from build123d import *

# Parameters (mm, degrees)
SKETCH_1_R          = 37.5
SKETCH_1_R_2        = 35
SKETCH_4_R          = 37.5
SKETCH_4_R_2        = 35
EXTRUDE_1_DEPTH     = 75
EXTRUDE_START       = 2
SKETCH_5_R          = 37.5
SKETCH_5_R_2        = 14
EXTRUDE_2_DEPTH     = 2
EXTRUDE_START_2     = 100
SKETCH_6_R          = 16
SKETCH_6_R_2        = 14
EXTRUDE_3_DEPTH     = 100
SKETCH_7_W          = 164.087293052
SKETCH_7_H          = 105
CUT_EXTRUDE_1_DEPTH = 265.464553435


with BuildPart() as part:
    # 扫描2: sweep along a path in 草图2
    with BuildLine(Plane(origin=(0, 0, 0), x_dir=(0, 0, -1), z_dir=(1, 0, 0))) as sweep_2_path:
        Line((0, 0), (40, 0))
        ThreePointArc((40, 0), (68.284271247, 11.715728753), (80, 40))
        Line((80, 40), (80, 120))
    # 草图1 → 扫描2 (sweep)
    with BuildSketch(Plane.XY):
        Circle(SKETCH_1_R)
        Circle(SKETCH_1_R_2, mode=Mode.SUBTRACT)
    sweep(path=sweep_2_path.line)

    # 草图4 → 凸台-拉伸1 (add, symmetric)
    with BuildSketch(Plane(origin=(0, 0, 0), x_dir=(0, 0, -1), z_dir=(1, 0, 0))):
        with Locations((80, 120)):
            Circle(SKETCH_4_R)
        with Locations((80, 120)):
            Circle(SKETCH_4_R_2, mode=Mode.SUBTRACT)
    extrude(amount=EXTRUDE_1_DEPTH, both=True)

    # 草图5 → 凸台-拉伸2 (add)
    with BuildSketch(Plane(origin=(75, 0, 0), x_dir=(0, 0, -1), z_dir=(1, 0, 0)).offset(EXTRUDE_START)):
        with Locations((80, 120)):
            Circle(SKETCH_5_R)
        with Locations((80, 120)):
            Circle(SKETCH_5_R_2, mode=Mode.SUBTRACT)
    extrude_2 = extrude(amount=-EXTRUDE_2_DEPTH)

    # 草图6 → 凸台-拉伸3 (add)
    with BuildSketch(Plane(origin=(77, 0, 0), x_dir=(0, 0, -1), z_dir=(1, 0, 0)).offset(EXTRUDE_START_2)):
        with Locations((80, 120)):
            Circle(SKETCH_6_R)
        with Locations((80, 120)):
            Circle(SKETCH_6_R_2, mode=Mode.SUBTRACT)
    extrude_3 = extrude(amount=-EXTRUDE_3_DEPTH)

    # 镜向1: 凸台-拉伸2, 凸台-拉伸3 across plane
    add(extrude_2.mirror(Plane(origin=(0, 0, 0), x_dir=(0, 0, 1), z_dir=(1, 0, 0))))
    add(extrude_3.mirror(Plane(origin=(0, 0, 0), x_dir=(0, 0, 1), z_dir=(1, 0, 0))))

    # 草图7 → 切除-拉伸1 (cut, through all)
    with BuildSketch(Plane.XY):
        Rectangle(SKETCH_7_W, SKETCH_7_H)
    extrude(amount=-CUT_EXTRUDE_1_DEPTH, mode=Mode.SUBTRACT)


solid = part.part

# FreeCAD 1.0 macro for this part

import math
import FreeCAD as App
import Part
import Sketcher

V = App.Vector
Q = App.Units.Quantity


def add_polygon(sketch, points):
    """Adds a closed chain of lines whose ends are joined by coincident constraints."""
    first, n = sketch.GeometryCount, len(points)
    for a, b in zip(points, points[1:] + points[:1]):
        sketch.addGeometry(Part.LineSegment(App.Vector(*a, 0), App.Vector(*b, 0)), False)
    for i in range(n):
        sketch.addConstraint(Sketcher.Constraint("Coincident", first + i, 2, first + (i + 1) % n, 1))

doc = App.newDocument("Part")
body = doc.addObject("PartDesign::Body", "Body")

sketch1 = body.newObject("Sketcher::SketchObject", "Sketch")
sketch1.AttachmentSupport = (doc.getObject("XY_Plane"), [""])
sketch1.MapMode = "FlatFace"
sketch1.addGeometry([
    Part.Circle(V(0, 0, 0), V(0, 0, 1), 37.5),
    Part.Circle(V(0, 0, 0), V(0, 0, 1), 35),
], False)
sketch1.addConstraint([
    Sketcher.Constraint("Coincident", 0, 3, -1, 1),
    Sketcher.Constraint("Coincident", 1, 3, -1, 1),
    Sketcher.Constraint("Diameter", 0, Q("75 mm")),
    Sketcher.Constraint("Diameter", 1, Q("70 mm")),
])

sketch2 = body.newObject("Sketcher::SketchObject", "Sketch001")
sketch2.AttachmentSupport = (doc.getObject("YZ_Plane"), [""])
sketch2.MapMode = "FlatFace"
sketch2.addGeometry([
    Part.LineSegment(V(0, 0, 0), V(0, -40, 0)),
    Part.ArcOfCircle(Part.Circle(V(40, -40, 0), V(0, 0, 1), 40), math.radians(-180), math.radians(-90)),
    Part.LineSegment(V(40, -80, 0), V(120, -80, 0)),
], False)
sketch2.addConstraint([
    Sketcher.Constraint("Tangent", 0, 2, 1, 1),
    Sketcher.Constraint("Tangent", 1, 2, 2, 1),
    Sketcher.Constraint("Vertical", 0),
    Sketcher.Constraint("Horizontal", 2),
    Sketcher.Constraint("Coincident", 0, 1, -1, 1),
    Sketcher.Constraint("Radius", 1, Q("40 mm")),
    Sketcher.Constraint("DistanceX", 2, 1, 2, 2, Q("80 mm")),
    Sketcher.Constraint("DistanceY", 0, 2, 0, 1, Q("40 mm")),
])
doc.recompute()

additivepipe = body.newObject("PartDesign::AdditivePipe", "AdditivePipe")
additivepipe.Profile = sketch1
additivepipe.Spine = (sketch2, ["Edge1", "Edge2", "Edge3"])

sketch3 = body.newObject("Sketcher::SketchObject", "Sketch002")
sketch3.AttachmentSupport = (doc.getObject("YZ_Plane"), [""])
sketch3.MapMode = "FlatFace"
sketch3.addGeometry([
    Part.Circle(V(120, -80, 0), V(0, 0, 1), 37.5),
    Part.Circle(V(120, -80, 0), V(0, 0, 1), 35),
], False)
sketch3.addConstraint([
    Sketcher.Constraint("Coincident", 1, 3, 0, 3),
    Sketcher.Constraint("Diameter", 0, Q("75 mm")),
    Sketcher.Constraint("Diameter", 1, Q("70 mm")),
    Sketcher.Constraint("DistanceX", -1, 1, 0, 3, Q("120 mm")),
    Sketcher.Constraint("DistanceY", 0, 3, -1, 1, Q("80 mm")),
])
pad1 = body.newObject("PartDesign::Pad", "Pad")
pad1.Profile = sketch3
pad1.Length = 150
pad1.Midplane = True

sketch4 = body.newObject("Sketcher::SketchObject", "Sketch003")
sketch4.AttachmentSupport = (doc.getObject("YZ_Plane"), [""])
sketch4.MapMode = "FlatFace"
sketch4.AttachmentOffset = App.Placement(V(0, 0, 77), App.Rotation())
sketch4.addGeometry([
    Part.Circle(V(120, -80, 0), V(0, 0, 1), 37.5),
    Part.Circle(V(120, -80, 0), V(0, 0, 1), 14),
], False)
sketch4.addConstraint([
    Sketcher.Constraint("Coincident", 1, 3, 0, 3),
    Sketcher.Constraint("Diameter", 0, Q("75 mm")),
    Sketcher.Constraint("Diameter", 1, Q("28 mm")),
    Sketcher.Constraint("DistanceX", -1, 1, 0, 3, Q("120 mm")),
    Sketcher.Constraint("DistanceY", 0, 3, -1, 1, Q("80 mm")),
])
pad2 = body.newObject("PartDesign::Pad", "Pad001")
pad2.Profile = sketch4
pad2.Length = 2
pad2.Reversed = True

sketch5 = body.newObject("Sketcher::SketchObject", "Sketch004")
sketch5.AttachmentSupport = (doc.getObject("YZ_Plane"), [""])
sketch5.MapMode = "FlatFace"
sketch5.AttachmentOffset = App.Placement(V(0, 0, 177), App.Rotation())
sketch5.addGeometry([
    Part.Circle(V(120, -80, 0), V(0, 0, 1), 16),
    Part.Circle(V(120, -80, 0), V(0, 0, 1), 14),
], False)
sketch5.addConstraint([
    Sketcher.Constraint("Coincident", 1, 3, 0, 3),
    Sketcher.Constraint("Diameter", 0, Q("32 mm")),
    Sketcher.Constraint("Diameter", 1, Q("28 mm")),
    Sketcher.Constraint("DistanceX", -1, 1, 0, 3, Q("120 mm")),
    Sketcher.Constraint("DistanceY", 0, 3, -1, 1, Q("80 mm")),
])
pad3 = body.newObject("PartDesign::Pad", "Pad002")
pad3.Profile = sketch5
pad3.Length = 100
pad3.Reversed = True
doc.recompute()

mirrored = body.newObject("PartDesign::Mirrored", "Mirrored")
mirrored.Originals = [pad2, pad3]
mirrored.MirrorPlane = (doc.getObject("YZ_Plane"), [""])
body.Tip = mirrored

sketch6 = body.newObject("Sketcher::SketchObject", "Sketch005")
sketch6.AttachmentSupport = (doc.getObject("XY_Plane"), [""])
sketch6.MapMode = "FlatFace"
add_polygon(sketch6, [(-82.043647, 52.5), (-82.043647, -52.5), (82.043647, -52.5), (82.043647, 52.5)])
sketch6.addConstraint([
    Sketcher.Constraint("Vertical", 0),
    Sketcher.Constraint("Horizontal", 1),
    Sketcher.Constraint("Vertical", 2),
    Sketcher.Constraint("Horizontal", 3),
    Sketcher.Constraint("Symmetric", 0, 2, 2, 2, -1, 1),
    Sketcher.Constraint("DistanceY", 0, 2, 0, 1, Q("105 mm")),
    Sketcher.Constraint("DistanceX", 1, 1, 1, 2, Q("164.087293 mm")),
])
pocket1 = body.newObject("PartDesign::Pocket", "Pocket")
pocket1.Profile = sketch6
pocket1.Type = "ThroughAll"

doc.recompute()
